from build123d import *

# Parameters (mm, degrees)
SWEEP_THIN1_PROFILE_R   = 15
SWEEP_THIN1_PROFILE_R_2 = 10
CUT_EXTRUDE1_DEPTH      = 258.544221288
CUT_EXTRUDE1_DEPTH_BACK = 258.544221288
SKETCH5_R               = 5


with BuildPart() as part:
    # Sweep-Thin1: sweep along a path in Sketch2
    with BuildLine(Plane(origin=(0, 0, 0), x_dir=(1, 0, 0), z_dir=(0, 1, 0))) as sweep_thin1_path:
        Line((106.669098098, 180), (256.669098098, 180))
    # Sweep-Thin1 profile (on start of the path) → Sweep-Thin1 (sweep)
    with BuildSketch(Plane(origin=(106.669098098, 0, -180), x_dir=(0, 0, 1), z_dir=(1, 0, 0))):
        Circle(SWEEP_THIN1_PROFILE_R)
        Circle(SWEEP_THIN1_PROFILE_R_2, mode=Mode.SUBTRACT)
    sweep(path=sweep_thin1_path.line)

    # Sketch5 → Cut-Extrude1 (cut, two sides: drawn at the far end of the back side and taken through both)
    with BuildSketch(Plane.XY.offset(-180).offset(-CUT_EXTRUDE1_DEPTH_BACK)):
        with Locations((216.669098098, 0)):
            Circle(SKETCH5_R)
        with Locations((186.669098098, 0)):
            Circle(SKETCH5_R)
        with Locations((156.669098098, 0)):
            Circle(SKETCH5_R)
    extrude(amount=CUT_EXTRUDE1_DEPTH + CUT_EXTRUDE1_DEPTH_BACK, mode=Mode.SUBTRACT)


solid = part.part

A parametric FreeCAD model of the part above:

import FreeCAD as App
import Part
import Sketcher
from FreeCAD import Vector
Q = App.Units.Quantity

doc = App.newDocument("Part")
body = doc.addObject("PartDesign::Body", "Body")

# Sketch on YZ plane
sketch1 = body.newObject("Sketcher::SketchObject", "Sketch")
sketch1.AttachmentSupport = (doc.getObject("YZ_Plane"), [""])
sketch1.MapMode = "FlatFace"
sketch1.AttachmentOffset = App.Placement(Vector(0, 0, 106.669098), App.Rotation())
sketch1.addGeometry([
    Part.Circle(Vector(0, -180, 0), Vector(0, 0, 1), 15),
    Part.Circle(Vector(0, -180, 0), Vector(0, 0, 1), 10),
], False)
sketch1.addConstraint([
    Sketcher.Constraint("Coincident", 1, 3, 0, 3),
    Sketcher.Constraint("PointOnObject", 0, 3, -2),
    Sketcher.Constraint("Diameter", 0, Q("30 mm")),
    Sketcher.Constraint("Diameter", 1, Q("20 mm")),
    Sketcher.Constraint("DistanceY", 0, 3, -1, 1, Q("180 mm")),
])

# Sketch on XY plane
sketch2 = body.newObject("Sketcher::SketchObject", "Sketch001")
sketch2.AttachmentSupport = (doc.getObject("XY_Plane"), [""])
sketch2.MapMode = "FlatFace"
sketch2.AttachmentOffset = App.Placement(Vector(0, 0, -180), App.Rotation())
sketch2.addGeometry(Part.LineSegment(Vector(107, 0, 0), Vector(257, 0, 0)), False)
sketch2.addConstraint([
    Sketcher.Constraint("Horizontal", 0),
    Sketcher.Constraint("PointOnObject", 0, 1, -1),
    Sketcher.Constraint("DistanceX", 0, 1, 0, 2, Q("150 mm")),
    Sketcher.Constraint("DistanceX", -1, 1, 0, 1, Q("106.669098 mm")),
])
doc.recompute()

additivepipe = body.newObject("PartDesign::AdditivePipe", "AdditivePipe")
additivepipe.Profile = sketch1
additivepipe.Spine = (sketch2, ["Edge1"])

# Sketch on XY plane
sketch3 = body.newObject("Sketcher::SketchObject", "Sketch002")
sketch3.AttachmentSupport = (doc.getObject("XY_Plane"), [""])
sketch3.MapMode = "FlatFace"
sketch3.AttachmentOffset = App.Placement(Vector(0, 0, -180), App.Rotation())
sketch3.addGeometry([
    Part.Circle(Vector(217, 0, 0), Vector(0, 0, 1), 5),
    Part.Circle(Vector(187, 0, 0), Vector(0, 0, 1), 5),
    Part.Circle(Vector(157, 0, 0), Vector(0, 0, 1), 5),
], False)
sketch3.addConstraint([
    Sketcher.Constraint("Equal", 0, 1),
    Sketcher.Constraint("Equal", 1, 2),
    Sketcher.Constraint("PointOnObject", 0, 3, -1),
    Sketcher.Constraint("PointOnObject", 1, 3, -1),
    Sketcher.Constraint("PointOnObject", 2, 3, -1),
    Sketcher.Constraint("Diameter", 0, Q("10 mm")),
    Sketcher.Constraint("DistanceX", 1, 3, 0, 3, Q("30 mm")),
    Sketcher.Constraint("DistanceX", 2, 3, 1, 3, Q("30 mm")),
    Sketcher.Constraint("DistanceX", -1, 1, 0, 3, Q("216.669098 mm")),
])
pocket1 = body.newObject("PartDesign::Pocket", "Pocket")
pocket1.Profile = sketch3
pocket1.Type = "ThroughAll"
pocket1.Midplane = True

doc.recompute()
